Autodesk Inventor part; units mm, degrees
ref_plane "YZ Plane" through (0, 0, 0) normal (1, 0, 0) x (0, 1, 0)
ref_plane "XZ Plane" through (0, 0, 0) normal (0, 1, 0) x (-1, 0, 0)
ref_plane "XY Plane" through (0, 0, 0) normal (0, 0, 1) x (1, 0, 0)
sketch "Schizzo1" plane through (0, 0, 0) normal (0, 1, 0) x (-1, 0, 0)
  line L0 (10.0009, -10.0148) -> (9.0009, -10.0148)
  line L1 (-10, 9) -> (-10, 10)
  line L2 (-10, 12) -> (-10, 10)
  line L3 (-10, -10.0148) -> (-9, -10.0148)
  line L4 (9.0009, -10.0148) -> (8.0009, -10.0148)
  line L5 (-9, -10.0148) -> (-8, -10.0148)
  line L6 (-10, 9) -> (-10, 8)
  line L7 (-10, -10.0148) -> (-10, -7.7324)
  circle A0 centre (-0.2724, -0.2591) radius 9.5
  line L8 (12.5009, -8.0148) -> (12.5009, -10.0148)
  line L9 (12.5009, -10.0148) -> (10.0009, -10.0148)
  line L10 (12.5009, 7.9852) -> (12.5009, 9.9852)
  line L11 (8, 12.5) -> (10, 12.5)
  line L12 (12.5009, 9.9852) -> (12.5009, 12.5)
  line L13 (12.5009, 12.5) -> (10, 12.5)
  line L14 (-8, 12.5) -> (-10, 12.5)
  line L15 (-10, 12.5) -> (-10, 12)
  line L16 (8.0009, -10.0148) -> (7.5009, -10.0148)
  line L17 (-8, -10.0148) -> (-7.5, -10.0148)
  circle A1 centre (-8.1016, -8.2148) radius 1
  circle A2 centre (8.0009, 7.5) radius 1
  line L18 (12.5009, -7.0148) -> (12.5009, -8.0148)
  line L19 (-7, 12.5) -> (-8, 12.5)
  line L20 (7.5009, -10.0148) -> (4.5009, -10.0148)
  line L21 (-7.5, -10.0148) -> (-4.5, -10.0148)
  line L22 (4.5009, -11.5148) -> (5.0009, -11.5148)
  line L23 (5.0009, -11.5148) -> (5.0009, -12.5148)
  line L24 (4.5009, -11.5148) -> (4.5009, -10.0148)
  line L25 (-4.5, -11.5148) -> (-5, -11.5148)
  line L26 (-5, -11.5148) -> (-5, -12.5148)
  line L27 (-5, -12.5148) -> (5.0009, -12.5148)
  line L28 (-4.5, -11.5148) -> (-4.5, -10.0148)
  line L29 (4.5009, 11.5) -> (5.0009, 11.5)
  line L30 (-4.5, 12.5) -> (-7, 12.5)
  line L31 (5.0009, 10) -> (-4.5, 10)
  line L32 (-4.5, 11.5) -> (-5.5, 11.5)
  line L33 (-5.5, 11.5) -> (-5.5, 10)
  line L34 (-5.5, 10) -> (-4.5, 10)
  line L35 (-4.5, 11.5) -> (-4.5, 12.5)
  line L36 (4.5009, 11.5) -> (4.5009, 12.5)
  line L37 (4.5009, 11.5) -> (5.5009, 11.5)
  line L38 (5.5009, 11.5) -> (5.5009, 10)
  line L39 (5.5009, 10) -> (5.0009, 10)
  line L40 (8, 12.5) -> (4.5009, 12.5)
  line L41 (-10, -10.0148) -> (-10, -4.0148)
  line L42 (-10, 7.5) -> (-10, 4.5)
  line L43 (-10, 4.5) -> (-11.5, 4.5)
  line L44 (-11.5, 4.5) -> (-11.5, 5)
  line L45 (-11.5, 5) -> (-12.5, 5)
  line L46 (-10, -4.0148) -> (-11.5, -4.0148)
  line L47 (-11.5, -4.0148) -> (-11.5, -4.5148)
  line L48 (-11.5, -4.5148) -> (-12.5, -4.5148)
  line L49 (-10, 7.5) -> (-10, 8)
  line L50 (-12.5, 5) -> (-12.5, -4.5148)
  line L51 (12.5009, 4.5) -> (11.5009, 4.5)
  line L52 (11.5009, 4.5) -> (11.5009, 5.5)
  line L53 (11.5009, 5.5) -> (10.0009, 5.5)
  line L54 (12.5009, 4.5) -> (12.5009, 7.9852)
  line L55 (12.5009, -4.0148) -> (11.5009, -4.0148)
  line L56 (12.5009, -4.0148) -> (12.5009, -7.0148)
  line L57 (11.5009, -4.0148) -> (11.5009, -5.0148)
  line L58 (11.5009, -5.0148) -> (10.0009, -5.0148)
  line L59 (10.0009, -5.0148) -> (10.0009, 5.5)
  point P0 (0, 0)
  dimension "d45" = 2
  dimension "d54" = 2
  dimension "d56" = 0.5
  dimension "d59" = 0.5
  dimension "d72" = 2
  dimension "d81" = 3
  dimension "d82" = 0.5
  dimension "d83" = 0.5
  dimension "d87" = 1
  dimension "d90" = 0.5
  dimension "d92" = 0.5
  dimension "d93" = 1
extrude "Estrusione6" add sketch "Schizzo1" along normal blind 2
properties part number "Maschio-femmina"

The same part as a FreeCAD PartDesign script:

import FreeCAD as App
import Part
import Sketcher

V = App.Vector


def add_polygon(sketch, points):
    """Adds a closed chain of lines whose ends are joined by coincident constraints."""
    first, n = sketch.GeometryCount, len(points)
    for a, b in zip(points, points[1:] + points[:1]):
        sketch.addGeometry(Part.LineSegment(App.Vector(*a, 0), App.Vector(*b, 0)), False)
    for i in range(n):
        sketch.addConstraint(Sketcher.Constraint("Coincident", first + i, 2, first + (i + 1) % n, 1))

doc = App.newDocument("Part")
params = doc.addObject("Spreadsheet::Sheet", "Params")
for row, (alias, value) in enumerate([
    ("sketch1_diameter", "2 mm"),
    ("sketch1_width", "1 mm"),
    ("sketch1_diameter2", "19 mm"),
    ("sketch1_width2", "0.5 mm"),
    ("sketch1_width3", "8 mm"),
    ("pad1_length", "2 mm"),
], start=1):
    params.set(f"A{row}", alias)
    params.set(f"B{row}", "=" + value)
    params.setAlias(f"B{row}", alias)

body = doc.addObject("PartDesign::Body", "Body")

# Sketch on XZ plane
sketch1 = doc.addObject("Sketcher::SketchObject", "Sketch")
body.addObject(sketch1)
sketch1.AttachmentSupport = (doc.XZ_Plane, [""])
sketch1.MapMode = "FlatFace"
add_polygon(sketch1, [(-4.5009, -10.0148), (-12.5009, -10.0148), (-12.5009, -4.0148), (-11.5009, -4.0148), (-11.5009, -5.0148), (-10.0009, -5.0148), (-10.0009, 5.5), (-11.5009, 5.5), (-11.5009, 4.5), (-12.5009, 4.5), (-12.5009, 12.5), (-4.5009, 12.5), (-4.5009, 11.5), (-5.5009, 11.5), (-5.5009, 10), (5.5, 10), (5.5, 11.5), (4.5, 11.5), (4.5, 12.5), (10, 12.5), (10, 4.5), (11.5, 4.5), (11.5, 5), (12.5, 5), (12.5, -4.5148), (11.5, -4.5148), (11.5, -4.0148), (10, -4.0148), (10, -10.0148), (4.5, -10.0148), (4.5, -11.5148), (5, -11.5148), (5, -12.5148), (-5.0009, -12.5148), (-5.0009, -11.5148), (-4.5009, -11.5148)])  # lines 0-35
sketch1.addGeometry(Part.Circle(V(8.1016, -8.2148, 0), V(0, 0, 1), 1), False)  # 36
sketch1.addGeometry(Part.Circle(V(0.2724, -0.2591, 0), V(0, 0, 1), 9.5), False)  # 37
sketch1.addGeometry(Part.Circle(V(-8.0009, 7.5, 0), V(0, 0, 1), 1), False)  # 38
sketch1.addConstraint(Sketcher.Constraint("Horizontal", 0))
sketch1.addConstraint(Sketcher.Constraint("Vertical", 1))
sketch1.addConstraint(Sketcher.Constraint("Horizontal", 2))
sketch1.addConstraint(Sketcher.Constraint("Vertical", 3))
sketch1.addConstraint(Sketcher.Constraint("Horizontal", 4))
sketch1.addConstraint(Sketcher.Constraint("Vertical", 5))
sketch1.addConstraint(Sketcher.Constraint("Horizontal", 6))
sketch1.addConstraint(Sketcher.Constraint("Vertical", 7))
sketch1.addConstraint(Sketcher.Constraint("Horizontal", 8))
sketch1.addConstraint(Sketcher.Constraint("Vertical", 9))
sketch1.addConstraint(Sketcher.Constraint("Horizontal", 10))
sketch1.addConstraint(Sketcher.Constraint("Vertical", 11))
sketch1.addConstraint(Sketcher.Constraint("Horizontal", 12))
sketch1.addConstraint(Sketcher.Constraint("Vertical", 13))
sketch1.addConstraint(Sketcher.Constraint("Horizontal", 14))
sketch1.addConstraint(Sketcher.Constraint("Vertical", 15))
sketch1.addConstraint(Sketcher.Constraint("Horizontal", 16))
sketch1.addConstraint(Sketcher.Constraint("Vertical", 17))
sketch1.addConstraint(Sketcher.Constraint("Horizontal", 18))
sketch1.addConstraint(Sketcher.Constraint("Vertical", 19))
sketch1.addConstraint(Sketcher.Constraint("Horizontal", 20))
sketch1.addConstraint(Sketcher.Constraint("Vertical", 21))
sketch1.addConstraint(Sketcher.Constraint("Horizontal", 22))
sketch1.addConstraint(Sketcher.Constraint("Vertical", 23))
sketch1.addConstraint(Sketcher.Constraint("Horizontal", 24))
sketch1.addConstraint(Sketcher.Constraint("Vertical", 25))
sketch1.addConstraint(Sketcher.Constraint("Horizontal", 26))
sketch1.addConstraint(Sketcher.Constraint("Vertical", 27))
sketch1.addConstraint(Sketcher.Constraint("Horizontal", 28))
sketch1.addConstraint(Sketcher.Constraint("Vertical", 29))
sketch1.addConstraint(Sketcher.Constraint("Horizontal", 30))
sketch1.addConstraint(Sketcher.Constraint("Vertical", 31))
sketch1.addConstraint(Sketcher.Constraint("Horizontal", 32))
sketch1.addConstraint(Sketcher.Constraint("Vertical", 33))
sketch1.addConstraint(Sketcher.Constraint("Horizontal", 34))
sketch1.addConstraint(Sketcher.Constraint("Vertical", 35))
sketch1.addConstraint(Sketcher.Constraint("Equal", 36, 38))
sketch1.addConstraint(Sketcher.Constraint("Horizontal", 12, 2, 15, 2))
sketch1.addConstraint(Sketcher.Constraint("Horizontal", 10, 2, 17, 2))
sketch1.addConstraint(Sketcher.Constraint("Horizontal", 8, 2, 19, 2))
sketch1.addConstraint(Sketcher.Constraint("Horizontal", 2, 2, 25, 2))
sketch1.addConstraint(Sketcher.Constraint("Horizontal", 0, 2, 27, 2))
sketch1.addConstraint(Sketcher.Constraint("Horizontal", 30, 2, 33, 2))
sketch1.addConstraint(Sketcher.Constraint("Vertical", 3, 2, 6, 2))
sketch1.addConstraint(Sketcher.Constraint("Vertical", 1, 2, 8, 2))
sketch1.addConstraint(Sketcher.Constraint("Vertical", 21, 2, 24, 2))
sketch1.addConstraint(Sketcher.Constraint("Vertical", 19, 2, 26, 2))
sketch1.addConstraint(Sketcher.Constraint("Vertical", 17, 2, 28, 2))
sketch1.addConstraint(Sketcher.Constraint("Vertical", 11, 2, 34, 2))
sketch1.addConstraint(Sketcher.Constraint("Equal", 8, 12))
sketch1.addConstraint(Sketcher.Constraint("Equal", 12, 16))
sketch1.addConstraint(Sketcher.Constraint("Equal", 6, 20))
sketch1.addConstraint(Sketcher.Constraint("Equal", 16, 22))
sketch1.addConstraint(Sketcher.Constraint("Equal", 30, 34))
sketch1.addConstraint(Sketcher.Constraint("Equal", 24, 3))
sketch1.addConstraint(Sketcher.Constraint("Equal", 3, 7))
sketch1.addConstraint(Sketcher.Constraint("Equal", 10, 9))
sketch1.addConstraint(Sketcher.Constraint("Equal", 7, 11))
sketch1.addConstraint(Sketcher.Constraint("Equal", 26, 13))
sketch1.addConstraint(Sketcher.Constraint("Equal", 34, 21))
sketch1.addConstraint(Sketcher.Constraint("Equal", 21, 25))
sketch1.addConstraint(Sketcher.Constraint("Equal", 15, 29))
sketch1.addConstraint(Sketcher.Constraint("Equal", 17, 31))
sketch1.addConstraint(Sketcher.Constraint("Diameter", 36, 2.0))
sketch1.addConstraint(Sketcher.Constraint("DistanceX", 2, 1, 2, 2, 1.0))
sketch1.addConstraint(Sketcher.Constraint("Diameter", 37, 19.0))
sketch1.addConstraint(Sketcher.Constraint("DistanceX", 30, 1, 30, 2, 0.5))
sketch1.addConstraint(Sketcher.Constraint("DistanceX", 5, 2, 38, 3, 2.0))
sketch1.addConstraint(Sketcher.Constraint("DistanceY", 5, 2, 38, 3, 2.0))
sketch1.addConstraint(Sketcher.Constraint("DistanceX", 0, 2, 0, 1, 8.0))
sketch1.addConstraint(Sketcher.Constraint("DistanceY", 1, 1, 1, 2, 6.0))
sketch1.addConstraint(Sketcher.Constraint("DistanceX", 4, 1, 4, 2, 1.5))
sketch1.addConstraint(Sketcher.Constraint("DistanceX", 18, 1, 18, 2, 5.5))
sketch1.addConstraint(Sketcher.Constraint("DistanceY", -1, 1, 13, 2, 10.0))
sketch1.addConstraint(Sketcher.Constraint("DistanceX", -1, 1, 18, 2, 10.0))
sketch1.addConstraint(Sketcher.Constraint("DistanceY", 0, 2, 36, 3, 1.8))
sketch1.addConstraint(Sketcher.Constraint("DistanceX", 14, 1, 14, 2, 11.001))
sketch1.addConstraint(Sketcher.Constraint("DistanceY", 5, 1, 5, 2, 10.5148))
sketch1.addConstraint(Sketcher.Constraint("DistanceY", 37, 3, -1, 1, 0.259))
sketch1.addConstraint(Sketcher.Constraint("DistanceX", -1, 1, 36, 3, 8.1016))
sketch1.addConstraint(Sketcher.Constraint("DistanceX", -1, 1, 37, 3, 0.2724))
sketch1.setExpression("Constraints[99]", "Params.sketch1_diameter")
sketch1.setExpression("Constraints[100]", "Params.sketch1_width")
sketch1.setExpression("Constraints[101]", "Params.sketch1_diameter2")
sketch1.setExpression("Constraints[102]", "Params.sketch1_width2")
sketch1.setExpression("Constraints[105]", "Params.sketch1_width3")
pad1 = doc.addObject("PartDesign::Pad", "Pad")
body.addObject(pad1)
pad1.Profile = sketch1
pad1.setExpression("Length", "Params.pad1_length")
pad1.Reversed = True

doc.recompute()
